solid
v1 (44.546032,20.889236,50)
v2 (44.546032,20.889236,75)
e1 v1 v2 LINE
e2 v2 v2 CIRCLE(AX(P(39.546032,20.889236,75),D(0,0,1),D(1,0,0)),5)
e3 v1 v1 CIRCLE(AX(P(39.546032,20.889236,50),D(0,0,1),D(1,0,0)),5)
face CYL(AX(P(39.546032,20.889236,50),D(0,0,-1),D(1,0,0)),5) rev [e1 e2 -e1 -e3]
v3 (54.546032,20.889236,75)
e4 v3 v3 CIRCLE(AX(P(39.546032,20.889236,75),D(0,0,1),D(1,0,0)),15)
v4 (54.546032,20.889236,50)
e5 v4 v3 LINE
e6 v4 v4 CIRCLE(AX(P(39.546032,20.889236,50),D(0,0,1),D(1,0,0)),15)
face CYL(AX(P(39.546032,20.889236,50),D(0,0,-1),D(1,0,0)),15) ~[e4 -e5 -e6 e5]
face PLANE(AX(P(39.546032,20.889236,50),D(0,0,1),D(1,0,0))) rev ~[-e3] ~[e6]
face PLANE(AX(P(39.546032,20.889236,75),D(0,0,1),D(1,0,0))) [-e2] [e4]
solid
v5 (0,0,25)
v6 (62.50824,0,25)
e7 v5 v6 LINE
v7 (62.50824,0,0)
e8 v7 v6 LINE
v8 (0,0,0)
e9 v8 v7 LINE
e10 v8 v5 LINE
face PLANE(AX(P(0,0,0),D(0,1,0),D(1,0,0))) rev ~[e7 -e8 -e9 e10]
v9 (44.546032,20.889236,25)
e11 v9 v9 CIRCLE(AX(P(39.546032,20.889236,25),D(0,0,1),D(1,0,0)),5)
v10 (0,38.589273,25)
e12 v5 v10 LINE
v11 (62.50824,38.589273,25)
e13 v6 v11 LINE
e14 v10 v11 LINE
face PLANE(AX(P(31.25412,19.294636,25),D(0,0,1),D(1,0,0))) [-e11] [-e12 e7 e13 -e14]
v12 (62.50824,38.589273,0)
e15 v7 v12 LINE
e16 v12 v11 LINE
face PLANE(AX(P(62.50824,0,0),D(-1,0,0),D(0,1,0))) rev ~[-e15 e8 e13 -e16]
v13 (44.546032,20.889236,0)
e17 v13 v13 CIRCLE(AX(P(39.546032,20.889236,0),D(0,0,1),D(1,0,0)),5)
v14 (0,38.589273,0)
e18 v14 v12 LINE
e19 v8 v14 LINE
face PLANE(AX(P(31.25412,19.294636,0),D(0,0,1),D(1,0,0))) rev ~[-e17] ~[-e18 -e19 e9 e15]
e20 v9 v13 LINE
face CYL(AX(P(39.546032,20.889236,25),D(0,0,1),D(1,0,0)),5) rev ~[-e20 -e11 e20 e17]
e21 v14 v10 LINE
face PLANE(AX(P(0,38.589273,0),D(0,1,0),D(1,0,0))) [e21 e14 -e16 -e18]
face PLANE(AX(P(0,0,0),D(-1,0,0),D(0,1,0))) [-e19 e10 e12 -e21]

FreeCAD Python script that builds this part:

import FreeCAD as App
import Part
import Sketcher

V = App.Vector
Q = App.Units.Quantity

doc = App.newDocument("Part")
body = doc.addObject("PartDesign::Body", "Body")

sketch1 = body.newObject("Sketcher::SketchObject", "Sketch")
sketch1.AttachmentSupport = (doc.getObject("XY_Plane"), [""])
sketch1.MapMode = "FlatFace"
sketch1.addGeometry([
    Part.LineSegment(V(0, 38.589273, 0), V(0, 0, 0)),
    Part.LineSegment(V(0, 0, 0), V(62.50824, 0, 0)),
    Part.LineSegment(V(62.50824, 0, 0), V(62.50824, 38.589273, 0)),
    Part.LineSegment(V(62.50824, 38.589273, 0), V(0, 38.589273, 0)),
], False)
sketch1.addConstraint([
    Sketcher.Constraint("Coincident", 0, 2, 1, 1),
    Sketcher.Constraint("Coincident", 1, 2, 2, 1),
    Sketcher.Constraint("Coincident", 2, 2, 3, 1),
    Sketcher.Constraint("Coincident", 3, 2, 0, 1),
    Sketcher.Constraint("Vertical", 0),
    Sketcher.Constraint("Horizontal", 1),
    Sketcher.Constraint("Vertical", 2),
    Sketcher.Constraint("Horizontal", 3),
    Sketcher.Constraint("Coincident", 0, 2, -1, 1),
    Sketcher.Constraint("DistanceX", 1, 1, 1, 2, Q("62.50824 mm")),
    Sketcher.Constraint("DistanceY", 0, 2, 0, 1, Q("38.589273 mm")),
])
pad1 = body.newObject("PartDesign::Pad", "Pad")
pad1.Profile = sketch1
pad1.Length = 25

sketch2 = body.newObject("Sketcher::SketchObject", "Sketch001")
sketch2.AttachmentSupport = (doc.getObject("XY_Plane"), [""])
sketch2.MapMode = "FlatFace"
sketch2.AttachmentOffset = App.Placement(V(0, 0, 25), App.Rotation())
sketch2.addGeometry(Part.Circle(V(39.546032, 20.889236, 0), V(0, 0, 1), 5), False)
sketch2.addConstraint([
    Sketcher.Constraint("Diameter", 0, Q("10 mm")),
    Sketcher.Constraint("DistanceX", -1, 1, 0, 3, Q("39.546032 mm")),
    Sketcher.Constraint("DistanceY", -1, 1, 0, 3, Q("20.889236 mm")),
])
pocket1 = body.newObject("PartDesign::Pocket", "Pocket")
pocket1.Profile = sketch2
pocket1.Length = 25
body2 = doc.addObject("PartDesign::Body", "Body001")

sketch3 = body2.newObject("Sketcher::SketchObject", "Sketch002")
sketch3.AttachmentSupport = (doc.getObject("XY_Plane001"), [""])
sketch3.MapMode = "FlatFace"
sketch3.AttachmentOffset = App.Placement(V(0, 0, 50), App.Rotation())
sketch3.addGeometry([
    Part.Circle(V(39.546032, 20.889236, 0), V(0, 0, 1), 15),
    Part.Circle(V(39.546032, 20.889236, 0), V(0, 0, 1), 5),
], False)
sketch3.addConstraint([
    Sketcher.Constraint("Coincident", 1, 3, 0, 3),
    Sketcher.Constraint("Diameter", 0, Q("30 mm")),
    Sketcher.Constraint("Diameter", 1, Q("10 mm")),
    Sketcher.Constraint("DistanceX", -1, 1, 0, 3, Q("39.546032 mm")),
    Sketcher.Constraint("DistanceY", -1, 1, 0, 3, Q("20.889236 mm")),
])
pad2 = body2.newObject("PartDesign::Pad", "Pad001")
pad2.Profile = sketch3
pad2.Length = 25

doc.recompute()
